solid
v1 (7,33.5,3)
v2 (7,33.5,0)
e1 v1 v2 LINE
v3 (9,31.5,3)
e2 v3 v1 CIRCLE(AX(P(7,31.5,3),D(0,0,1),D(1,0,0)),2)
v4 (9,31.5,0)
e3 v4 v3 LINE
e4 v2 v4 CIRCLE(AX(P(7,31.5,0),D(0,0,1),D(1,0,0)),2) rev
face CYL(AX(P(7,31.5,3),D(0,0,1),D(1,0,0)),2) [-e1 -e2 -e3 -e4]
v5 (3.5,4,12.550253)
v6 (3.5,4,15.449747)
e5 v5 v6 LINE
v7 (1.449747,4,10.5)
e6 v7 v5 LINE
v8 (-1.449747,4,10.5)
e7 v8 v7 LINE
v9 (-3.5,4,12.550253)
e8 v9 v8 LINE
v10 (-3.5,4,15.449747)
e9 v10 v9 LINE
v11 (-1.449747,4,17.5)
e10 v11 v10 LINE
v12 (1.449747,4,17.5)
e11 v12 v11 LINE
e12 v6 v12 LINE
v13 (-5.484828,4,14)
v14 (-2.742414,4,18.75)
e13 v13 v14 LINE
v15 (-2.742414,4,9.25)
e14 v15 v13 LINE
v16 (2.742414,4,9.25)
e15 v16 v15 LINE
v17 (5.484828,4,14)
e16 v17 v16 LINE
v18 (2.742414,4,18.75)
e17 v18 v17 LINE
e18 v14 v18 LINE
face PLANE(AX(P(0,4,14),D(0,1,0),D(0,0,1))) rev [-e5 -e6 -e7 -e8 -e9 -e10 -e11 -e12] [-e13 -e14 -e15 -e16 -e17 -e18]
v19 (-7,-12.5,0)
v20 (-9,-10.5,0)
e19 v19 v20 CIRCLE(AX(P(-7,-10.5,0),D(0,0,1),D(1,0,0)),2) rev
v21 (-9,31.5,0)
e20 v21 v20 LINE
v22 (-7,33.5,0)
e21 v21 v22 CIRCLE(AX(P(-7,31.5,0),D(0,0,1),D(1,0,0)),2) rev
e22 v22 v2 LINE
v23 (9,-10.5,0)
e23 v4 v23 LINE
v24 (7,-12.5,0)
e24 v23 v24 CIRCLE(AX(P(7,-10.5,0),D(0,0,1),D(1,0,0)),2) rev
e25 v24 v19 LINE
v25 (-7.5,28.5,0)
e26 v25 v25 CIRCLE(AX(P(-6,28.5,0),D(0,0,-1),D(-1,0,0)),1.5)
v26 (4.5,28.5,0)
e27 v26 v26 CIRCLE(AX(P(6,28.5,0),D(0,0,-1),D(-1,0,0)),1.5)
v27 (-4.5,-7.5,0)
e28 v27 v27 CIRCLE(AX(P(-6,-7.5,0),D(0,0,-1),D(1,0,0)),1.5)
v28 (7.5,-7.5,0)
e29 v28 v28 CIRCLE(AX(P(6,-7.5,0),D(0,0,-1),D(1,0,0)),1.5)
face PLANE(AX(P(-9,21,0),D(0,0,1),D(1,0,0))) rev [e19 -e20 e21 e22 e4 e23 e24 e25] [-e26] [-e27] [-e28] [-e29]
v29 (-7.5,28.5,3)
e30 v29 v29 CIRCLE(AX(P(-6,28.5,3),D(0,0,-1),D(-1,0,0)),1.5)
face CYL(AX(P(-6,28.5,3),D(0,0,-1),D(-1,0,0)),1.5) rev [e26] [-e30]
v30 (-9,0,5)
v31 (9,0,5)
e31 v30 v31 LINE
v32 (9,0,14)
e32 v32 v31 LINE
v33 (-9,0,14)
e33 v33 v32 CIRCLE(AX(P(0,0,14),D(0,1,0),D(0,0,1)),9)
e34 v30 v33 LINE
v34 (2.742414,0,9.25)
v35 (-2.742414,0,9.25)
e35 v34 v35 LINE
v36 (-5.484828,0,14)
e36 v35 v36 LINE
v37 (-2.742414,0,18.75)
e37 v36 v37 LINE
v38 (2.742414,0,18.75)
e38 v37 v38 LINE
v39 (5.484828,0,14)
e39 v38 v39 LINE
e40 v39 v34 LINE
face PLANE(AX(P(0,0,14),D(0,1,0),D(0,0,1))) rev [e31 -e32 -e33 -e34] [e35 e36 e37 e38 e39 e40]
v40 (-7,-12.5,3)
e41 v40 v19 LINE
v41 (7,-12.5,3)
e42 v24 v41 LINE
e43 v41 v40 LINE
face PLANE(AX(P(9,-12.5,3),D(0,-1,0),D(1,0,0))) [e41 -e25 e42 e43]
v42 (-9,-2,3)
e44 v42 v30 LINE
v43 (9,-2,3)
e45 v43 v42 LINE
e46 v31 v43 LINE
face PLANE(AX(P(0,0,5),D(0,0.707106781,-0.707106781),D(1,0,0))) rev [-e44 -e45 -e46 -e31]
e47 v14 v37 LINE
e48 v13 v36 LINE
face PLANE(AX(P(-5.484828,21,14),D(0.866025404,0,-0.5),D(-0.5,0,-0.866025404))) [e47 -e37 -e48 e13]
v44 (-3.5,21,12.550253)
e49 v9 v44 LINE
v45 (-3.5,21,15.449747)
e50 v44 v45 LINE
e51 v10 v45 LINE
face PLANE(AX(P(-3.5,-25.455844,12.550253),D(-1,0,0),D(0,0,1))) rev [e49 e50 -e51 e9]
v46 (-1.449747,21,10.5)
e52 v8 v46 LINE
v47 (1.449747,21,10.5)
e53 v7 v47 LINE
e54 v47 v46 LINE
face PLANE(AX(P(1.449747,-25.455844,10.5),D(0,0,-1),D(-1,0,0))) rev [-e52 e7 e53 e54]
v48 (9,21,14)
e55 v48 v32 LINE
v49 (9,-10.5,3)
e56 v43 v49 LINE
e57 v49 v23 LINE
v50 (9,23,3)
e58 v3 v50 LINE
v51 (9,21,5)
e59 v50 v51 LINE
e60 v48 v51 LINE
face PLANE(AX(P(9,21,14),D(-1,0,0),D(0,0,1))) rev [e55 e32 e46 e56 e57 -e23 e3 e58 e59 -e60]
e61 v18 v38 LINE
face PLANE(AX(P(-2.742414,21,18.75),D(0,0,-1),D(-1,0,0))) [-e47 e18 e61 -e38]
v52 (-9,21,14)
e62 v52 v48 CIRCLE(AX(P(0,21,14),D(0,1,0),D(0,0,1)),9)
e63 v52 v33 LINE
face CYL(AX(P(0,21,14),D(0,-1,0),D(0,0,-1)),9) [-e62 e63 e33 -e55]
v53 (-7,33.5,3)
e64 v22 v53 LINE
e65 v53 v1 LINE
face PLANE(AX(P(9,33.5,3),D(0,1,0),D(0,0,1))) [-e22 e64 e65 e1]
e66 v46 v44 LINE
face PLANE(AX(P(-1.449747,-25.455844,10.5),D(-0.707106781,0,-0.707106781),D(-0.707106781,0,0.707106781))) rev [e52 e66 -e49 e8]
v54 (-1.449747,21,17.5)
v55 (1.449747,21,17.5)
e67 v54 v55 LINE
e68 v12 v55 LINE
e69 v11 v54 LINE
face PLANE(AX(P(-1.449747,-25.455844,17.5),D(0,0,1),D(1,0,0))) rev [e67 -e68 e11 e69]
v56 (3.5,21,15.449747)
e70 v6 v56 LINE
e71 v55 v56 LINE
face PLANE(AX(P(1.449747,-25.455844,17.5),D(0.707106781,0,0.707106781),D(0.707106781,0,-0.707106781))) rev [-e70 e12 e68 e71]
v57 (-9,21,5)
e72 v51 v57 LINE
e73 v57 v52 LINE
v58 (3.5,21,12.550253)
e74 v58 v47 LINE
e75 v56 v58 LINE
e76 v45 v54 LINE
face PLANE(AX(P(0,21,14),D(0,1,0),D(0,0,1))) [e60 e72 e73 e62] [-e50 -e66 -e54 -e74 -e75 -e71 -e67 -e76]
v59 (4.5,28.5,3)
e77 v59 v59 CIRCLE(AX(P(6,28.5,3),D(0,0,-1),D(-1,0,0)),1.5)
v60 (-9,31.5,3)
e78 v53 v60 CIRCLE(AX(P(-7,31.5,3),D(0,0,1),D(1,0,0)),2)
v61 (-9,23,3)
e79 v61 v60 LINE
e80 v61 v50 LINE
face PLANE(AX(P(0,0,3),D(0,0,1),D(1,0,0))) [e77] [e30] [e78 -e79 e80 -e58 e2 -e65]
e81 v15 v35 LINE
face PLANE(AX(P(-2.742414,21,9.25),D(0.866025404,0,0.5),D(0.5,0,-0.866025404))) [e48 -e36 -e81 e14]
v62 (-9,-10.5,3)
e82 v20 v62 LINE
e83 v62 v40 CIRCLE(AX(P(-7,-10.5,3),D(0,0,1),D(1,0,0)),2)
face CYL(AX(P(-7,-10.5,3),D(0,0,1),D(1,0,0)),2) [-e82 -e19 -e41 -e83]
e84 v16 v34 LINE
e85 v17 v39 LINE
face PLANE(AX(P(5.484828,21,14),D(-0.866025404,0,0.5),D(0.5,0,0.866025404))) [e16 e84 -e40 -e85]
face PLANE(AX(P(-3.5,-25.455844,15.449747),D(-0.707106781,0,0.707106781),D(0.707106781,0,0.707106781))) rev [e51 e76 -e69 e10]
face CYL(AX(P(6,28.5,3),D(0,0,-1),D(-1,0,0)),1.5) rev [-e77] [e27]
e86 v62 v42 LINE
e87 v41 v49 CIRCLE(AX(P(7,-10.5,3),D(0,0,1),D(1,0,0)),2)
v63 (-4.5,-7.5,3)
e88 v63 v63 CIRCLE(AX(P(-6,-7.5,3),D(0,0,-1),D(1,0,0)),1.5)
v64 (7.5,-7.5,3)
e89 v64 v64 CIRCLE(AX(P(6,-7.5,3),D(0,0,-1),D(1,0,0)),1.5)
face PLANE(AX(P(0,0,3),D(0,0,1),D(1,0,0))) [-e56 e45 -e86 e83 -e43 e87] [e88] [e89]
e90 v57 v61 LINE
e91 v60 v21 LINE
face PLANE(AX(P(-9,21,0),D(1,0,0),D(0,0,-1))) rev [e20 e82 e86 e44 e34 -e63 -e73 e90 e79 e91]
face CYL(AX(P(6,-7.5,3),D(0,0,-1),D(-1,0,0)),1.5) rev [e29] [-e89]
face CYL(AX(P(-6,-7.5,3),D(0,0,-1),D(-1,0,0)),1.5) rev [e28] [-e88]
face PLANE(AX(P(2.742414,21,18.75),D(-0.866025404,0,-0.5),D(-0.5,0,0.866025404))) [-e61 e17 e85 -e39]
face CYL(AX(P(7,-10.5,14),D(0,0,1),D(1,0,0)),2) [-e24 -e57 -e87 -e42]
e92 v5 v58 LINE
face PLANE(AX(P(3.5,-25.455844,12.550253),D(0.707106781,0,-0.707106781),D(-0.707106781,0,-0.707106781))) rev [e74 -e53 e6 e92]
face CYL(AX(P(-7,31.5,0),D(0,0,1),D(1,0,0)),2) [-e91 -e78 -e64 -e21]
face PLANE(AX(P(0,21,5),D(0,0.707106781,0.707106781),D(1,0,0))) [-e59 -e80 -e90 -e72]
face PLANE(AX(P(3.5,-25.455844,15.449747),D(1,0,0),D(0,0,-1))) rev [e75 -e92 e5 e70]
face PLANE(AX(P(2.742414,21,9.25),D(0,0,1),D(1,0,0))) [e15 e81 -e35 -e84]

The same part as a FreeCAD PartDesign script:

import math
import FreeCAD as App
import Part
import Sketcher
Q = App.Units.Quantity


def edges_at(feature, points):
    """Names of the edges that pass closest to the given points."""
    edges = feature.Shape.Edges
    near = lambda p: min(range(len(edges)), key=lambda i: edges[i].distToShape(Part.Vertex(*p))[0])
    return sorted({f"Edge{near(p) + 1}" for p in points})


def add_polygon(sketch, points):
    """Adds a closed chain of lines whose ends are joined by coincident constraints."""
    first, n = sketch.GeometryCount, len(points)
    for a, b in zip(points, points[1:] + points[:1]):
        sketch.addGeometry(Part.LineSegment(App.Vector(*a, 0), App.Vector(*b, 0)), False)
    for i in range(n):
        sketch.addConstraint(Sketcher.Constraint("Coincident", first + i, 2, first + (i + 1) % n, 1))

doc = App.newDocument("Part")
body = doc.addObject("PartDesign::Body", "Body")

sketch1 = body.newObject("Sketcher::SketchObject", "Sketch")
sketch1.AttachmentSupport = (doc.getObject("XZ_Plane"), [""])
sketch1.MapMode = "FlatFace"
sketch1.addGeometry(Part.LineSegment(App.Vector(9, 0, 0), App.Vector(-9, 0, 0)), False)
sketch1.addGeometry(Part.LineSegment(App.Vector(-9, 0, 0), App.Vector(-9, 14, 0)), False)
sketch1.addGeometry(Part.ArcOfCircle(Part.Circle(App.Vector(0, 14, 0), App.Vector(0, 0, 1), 9), math.radians(0), math.radians(180)), False)
sketch1.addGeometry(Part.LineSegment(App.Vector(9, 14, 0), App.Vector(9, 0, 0)), False)
add_polygon(sketch1, [(-3, 9), (3, 9), (5, 14), (3, 19), (-3, 19), (-5, 14)])
sketch1.addConstraint([
    Sketcher.Constraint("Coincident", 0, 2, 1, 1),
    Sketcher.Constraint("Tangent", 1, 2, 2, 2),
    Sketcher.Constraint("Tangent", 2, 1, 3, 1),
    Sketcher.Constraint("Coincident", 3, 2, 0, 1),
    Sketcher.Constraint("Horizontal", 0),
    Sketcher.Constraint("Vertical", 1),
    Sketcher.Constraint("Vertical", 3),
    Sketcher.Constraint("Horizontal", 4),
    Sketcher.Constraint("Horizontal", 7),
    Sketcher.Constraint("Symmetric", 0, 2, 3, 2, -1, 1),
    Sketcher.Constraint("Symmetric", 5, 2, 8, 2, -2),
    Sketcher.Constraint("Parallel", 5, 8),
    Sketcher.Constraint("Parallel", 6, 9),
    Sketcher.Constraint("Horizontal", 2, 1, 5, 2),
    Sketcher.Constraint("Vertical", 4, 2, 6, 2),
    Sketcher.Constraint("Vertical", 7, 2, 9, 2),
    Sketcher.Constraint("Radius", 2, 9.0),
    Sketcher.Constraint("DistanceY", 1, 1, 1, 2, 14.0),
    Sketcher.Constraint("Angle", 5, Q("60 deg")),
    Sketcher.Constraint("DistanceY", 4, 2, 6, 2, 9.5),
    Sketcher.Constraint("DistanceX", 4, 1, 4, 2, 5.484828),
])
pad1 = body.newObject("PartDesign::Pad", "Pad")
pad1.Profile = sketch1
pad1.Length = 21
pad1.Reversed = True

sketch2 = body.newObject("Sketcher::SketchObject", "Sketch001")
sketch2.AttachmentSupport = (doc.getObject("XZ_Plane"), [""])
sketch2.MapMode = "FlatFace"
sketch2.AttachmentOffset = App.Placement(App.Vector(0, 0, -4), App.Rotation())
sketch2.addGeometry(Part.Circle(App.Vector(0, 14, 0), App.Vector(0, 0, 1), 9), False)
add_polygon(sketch2, [(1.4, 10.5), (3.5, 12.6), (3.5, 15.4), (1.4, 17.5), (-1.4, 17.5), (-3.5, 15.4), (-3.5, 12.6), (-1.4, 10.5)])
sketch2.addConstraint([
    Sketcher.Constraint("Vertical", 2),
    Sketcher.Constraint("Horizontal", 4),
    Sketcher.Constraint("Vertical", 6),
    Sketcher.Constraint("Horizontal", 8),
    Sketcher.Constraint("Symmetric", 2, 2, 5, 2, -2),
    Sketcher.Constraint("PointOnObject", 0, 3, -2),
    Sketcher.Constraint("Perpendicular", 1, 3),
    Sketcher.Constraint("Perpendicular", 3, 5),
    Sketcher.Constraint("Perpendicular", 5, 7),
    Sketcher.Constraint("Horizontal", 1, 2, 6, 2),
    Sketcher.Constraint("Vertical", 4, 2, 7, 2),
    Sketcher.Constraint("Vertical", 3, 2, 8, 2),
    Sketcher.Constraint("Equal", 8, 2),
    Sketcher.Constraint("Diameter", 0, 18.0),
    Sketcher.Constraint("DistanceY", -1, 1, 0, 3, 14.0),
    Sketcher.Constraint("DistanceX", 5, 2, 2, 2, 7.0),
    Sketcher.Constraint("DistanceY", -1, 1, 3, 2, 17.5),
    Sketcher.Constraint("DistanceX", 4, 2, 4, 1, 2.899495),
])
pad2 = body.newObject("PartDesign::Pad", "Pad001")
pad2.Profile = sketch2
pad2.Length = 17
pad2.Reversed = True

sketch3 = body.newObject("Sketcher::SketchObject", "Sketch002")
sketch3.AttachmentSupport = (doc.getObject("XY_Plane"), [""])
sketch3.MapMode = "FlatFace"
add_polygon(sketch3, [(9, 33.5), (9, 21), (-9, 21), (-9, 33.5)])
sketch3.addGeometry(Part.Circle(App.Vector(6, 28.5, 0), App.Vector(0, 0, 1), 1.5), False)
sketch3.addGeometry(Part.Circle(App.Vector(-6, 28.5, 0), App.Vector(0, 0, 1), 1.5), False)
add_polygon(sketch3, [(9, 0), (9, -12.5), (-9, -12.5), (-9, 0)])
sketch3.addGeometry(Part.Circle(App.Vector(6, -7.5, 0), App.Vector(0, 0, 1), 1.5), False)
sketch3.addGeometry(Part.Circle(App.Vector(-6, -7.5, 0), App.Vector(0, 0, 1), 1.5), False)
sketch3.addConstraint([
    Sketcher.Constraint("Vertical", 0),
    Sketcher.Constraint("Horizontal", 1),
    Sketcher.Constraint("Vertical", 2),
    Sketcher.Constraint("Horizontal", 3),
    Sketcher.Constraint("Vertical", 6),
    Sketcher.Constraint("Horizontal", 7),
    Sketcher.Constraint("Vertical", 8),
    Sketcher.Constraint("Horizontal", 9),
    Sketcher.Constraint("Equal", 4, 5),
    Sketcher.Constraint("Equal", 5, 10),
    Sketcher.Constraint("Equal", 10, 11),
    Sketcher.Constraint("Symmetric", 8, 2, 9, 2, -1, 1),
    Sketcher.Constraint("Symmetric", 4, 3, 5, 3, -2),
    Sketcher.Constraint("Symmetric", 10, 3, 11, 3, -2),
    Sketcher.Constraint("Vertical", 4, 3, 10, 3),
    Sketcher.Constraint("Vertical", 3, 2, 6, 2),
    Sketcher.Constraint("Vertical", 2, 2, 7, 2),
    Sketcher.Constraint("Equal", 2, 6),
    Sketcher.Constraint("Diameter", 4, 3.0),
    Sketcher.Constraint("DistanceX", 1, 2, 1, 1, 18.0),
    Sketcher.Constraint("DistanceY", 0, 2, 0, 1, 12.5),
    Sketcher.Constraint("DistanceX", -1, 1, 4, 3, 6.0),
    Sketcher.Constraint("DistanceY", -1, 1, 0, 2, 21.0),
    Sketcher.Constraint("DistanceY", 10, 3, 4, 3, 36.0),
    Sketcher.Constraint("DistanceY", 5, 3, 2, 2, 5.0),
])
pad3 = body.newObject("PartDesign::Pad", "Pad002")
pad3.Profile = sketch3
pad3.Length = 3
doc.recompute()

fillet = body.newObject("PartDesign::Fillet", "Fillet")
fillet.Base = (pad3, edges_at(pad3, [
    (9, 33.5, 1.5),
    (-9, 33.5, 1.5),
    (-9, -12.5, 1.5),
    (9, -12.5, 1.5),
]))
fillet.Radius = 2
doc.recompute()

chamfer = body.newObject("PartDesign::Chamfer", "Chamfer")
chamfer.Base = (fillet, edges_at(fillet, [(0, 21, 3), (0, 0, 3)]))
chamfer.Size = 2

doc.recompute()
